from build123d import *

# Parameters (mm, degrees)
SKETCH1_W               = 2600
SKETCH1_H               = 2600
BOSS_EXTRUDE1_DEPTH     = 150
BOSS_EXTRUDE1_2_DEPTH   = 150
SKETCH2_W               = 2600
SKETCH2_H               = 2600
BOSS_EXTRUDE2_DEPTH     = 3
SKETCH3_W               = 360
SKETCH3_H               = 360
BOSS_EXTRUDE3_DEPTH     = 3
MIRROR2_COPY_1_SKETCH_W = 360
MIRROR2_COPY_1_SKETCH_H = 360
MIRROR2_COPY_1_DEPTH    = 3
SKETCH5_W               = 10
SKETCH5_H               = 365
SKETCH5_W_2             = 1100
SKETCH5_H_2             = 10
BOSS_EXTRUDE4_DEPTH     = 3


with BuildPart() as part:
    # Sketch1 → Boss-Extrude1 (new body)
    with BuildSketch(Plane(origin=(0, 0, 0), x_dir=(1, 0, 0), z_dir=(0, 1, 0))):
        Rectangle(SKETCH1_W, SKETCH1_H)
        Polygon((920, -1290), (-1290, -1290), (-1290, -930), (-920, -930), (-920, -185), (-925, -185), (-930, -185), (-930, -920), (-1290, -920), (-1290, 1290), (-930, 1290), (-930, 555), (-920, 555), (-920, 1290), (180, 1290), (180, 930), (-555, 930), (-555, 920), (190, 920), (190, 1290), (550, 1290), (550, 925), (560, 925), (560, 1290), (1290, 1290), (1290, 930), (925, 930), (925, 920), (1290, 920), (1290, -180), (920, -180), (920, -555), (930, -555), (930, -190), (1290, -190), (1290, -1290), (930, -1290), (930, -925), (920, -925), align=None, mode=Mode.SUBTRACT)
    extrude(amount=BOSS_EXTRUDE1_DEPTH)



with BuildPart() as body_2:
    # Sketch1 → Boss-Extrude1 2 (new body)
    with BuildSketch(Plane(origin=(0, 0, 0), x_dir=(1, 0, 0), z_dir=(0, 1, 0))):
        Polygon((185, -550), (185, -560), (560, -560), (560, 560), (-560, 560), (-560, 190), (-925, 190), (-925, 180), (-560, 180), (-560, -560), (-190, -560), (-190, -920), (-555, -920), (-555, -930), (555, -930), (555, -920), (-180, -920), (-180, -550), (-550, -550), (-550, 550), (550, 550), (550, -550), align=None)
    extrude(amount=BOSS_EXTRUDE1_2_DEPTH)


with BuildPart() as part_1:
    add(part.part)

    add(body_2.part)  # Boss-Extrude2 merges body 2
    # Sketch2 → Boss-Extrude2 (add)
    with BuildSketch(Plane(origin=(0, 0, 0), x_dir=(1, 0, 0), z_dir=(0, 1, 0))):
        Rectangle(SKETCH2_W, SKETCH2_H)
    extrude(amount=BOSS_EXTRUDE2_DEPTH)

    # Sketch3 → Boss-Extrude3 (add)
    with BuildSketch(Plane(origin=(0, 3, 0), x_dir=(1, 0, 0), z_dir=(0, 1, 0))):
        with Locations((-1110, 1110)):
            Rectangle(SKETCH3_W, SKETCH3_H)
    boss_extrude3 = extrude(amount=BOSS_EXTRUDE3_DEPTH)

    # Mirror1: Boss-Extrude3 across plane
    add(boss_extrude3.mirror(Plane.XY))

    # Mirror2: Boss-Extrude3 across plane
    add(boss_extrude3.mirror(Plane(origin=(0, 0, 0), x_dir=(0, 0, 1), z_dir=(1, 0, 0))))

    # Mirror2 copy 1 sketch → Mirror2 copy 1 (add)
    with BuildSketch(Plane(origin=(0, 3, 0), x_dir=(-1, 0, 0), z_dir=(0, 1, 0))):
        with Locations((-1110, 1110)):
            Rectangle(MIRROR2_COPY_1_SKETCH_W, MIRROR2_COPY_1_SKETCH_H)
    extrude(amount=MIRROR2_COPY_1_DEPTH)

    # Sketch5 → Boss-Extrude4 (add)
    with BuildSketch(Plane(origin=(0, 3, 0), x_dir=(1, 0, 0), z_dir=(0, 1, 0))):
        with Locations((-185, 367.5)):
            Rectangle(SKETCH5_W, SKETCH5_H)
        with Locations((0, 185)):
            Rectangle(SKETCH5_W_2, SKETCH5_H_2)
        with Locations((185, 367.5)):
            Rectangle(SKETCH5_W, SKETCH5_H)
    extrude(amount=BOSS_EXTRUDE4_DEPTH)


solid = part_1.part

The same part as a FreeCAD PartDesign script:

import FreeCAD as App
import Part
import Sketcher
from FreeCAD import Vector


def add_polygon(sketch, points):
    """Adds a closed chain of lines whose ends are joined by coincident constraints."""
    first, n = sketch.GeometryCount, len(points)
    for a, b in zip(points, points[1:] + points[:1]):
        sketch.addGeometry(Part.LineSegment(App.Vector(*a, 0), App.Vector(*b, 0)), False)
    for i in range(n):
        sketch.addConstraint(Sketcher.Constraint("Coincident", first + i, 2, first + (i + 1) % n, 1))

doc = App.newDocument("Part")
body = doc.addObject("PartDesign::Body", "Body")

sketch1 = doc.addObject("Sketcher::SketchObject", "Sketch")
body.addObject(sketch1)
sketch1.AttachmentSupport = (doc.XZ_Plane, [""])
sketch1.MapMode = "FlatFace"
add_polygon(sketch1, [(-1300, -1300), (-1300, 1300), (1300, 1300), (1300, -1300)])
add_polygon(sketch1, [(920, 925), (920, 1290), (-1290, 1290), (-1290, 930), (-920, 930), (-920, 185), (-930, 185), (-930, 920), (-1290, 920), (-1290, -1290), (-930, -1290), (-930, -555), (-920, -555), (-920, -1290), (180, -1290), (180, -930), (-555, -930), (-555, -920), (190, -920), (190, -1290), (550, -1290), (550, -925), (560, -925), (560, -1290), (1290, -1290), (1290, -930), (925, -930), (925, -920), (1290, -920), (1290, 180), (920, 180), (920, 555), (930, 555), (930, 190), (1290, 190), (1290, 1290), (930, 1290), (930, 925)])
sketch1.addConstraint([
    Sketcher.Constraint("Vertical", 0),
    Sketcher.Constraint("Horizontal", 1),
    Sketcher.Constraint("Vertical", 2),
    Sketcher.Constraint("Horizontal", 3),
    Sketcher.Constraint("Vertical", 4),
    Sketcher.Constraint("Horizontal", 5),
    Sketcher.Constraint("Vertical", 6),
    Sketcher.Constraint("Horizontal", 7),
    Sketcher.Constraint("Vertical", 8),
    Sketcher.Constraint("Horizontal", 9),
    Sketcher.Constraint("Vertical", 10),
    Sketcher.Constraint("Horizontal", 11),
    Sketcher.Constraint("Vertical", 12),
    Sketcher.Constraint("Horizontal", 13),
    Sketcher.Constraint("Vertical", 14),
    Sketcher.Constraint("Horizontal", 15),
    Sketcher.Constraint("Vertical", 16),
    Sketcher.Constraint("Horizontal", 17),
    Sketcher.Constraint("Vertical", 18),
    Sketcher.Constraint("Horizontal", 19),
    Sketcher.Constraint("Vertical", 20),
    Sketcher.Constraint("Horizontal", 21),
    Sketcher.Constraint("Vertical", 22),
    Sketcher.Constraint("Horizontal", 23),
    Sketcher.Constraint("Vertical", 24),
    Sketcher.Constraint("Horizontal", 25),
    Sketcher.Constraint("Vertical", 26),
    Sketcher.Constraint("Horizontal", 27),
    Sketcher.Constraint("Vertical", 28),
    Sketcher.Constraint("Horizontal", 29),
    Sketcher.Constraint("Vertical", 30),
    Sketcher.Constraint("Horizontal", 31),
    Sketcher.Constraint("Vertical", 32),
    Sketcher.Constraint("Horizontal", 33),
    Sketcher.Constraint("Vertical", 34),
    Sketcher.Constraint("Horizontal", 35),
    Sketcher.Constraint("Vertical", 36),
    Sketcher.Constraint("Horizontal", 37),
    Sketcher.Constraint("Vertical", 38),
    Sketcher.Constraint("Horizontal", 39),
    Sketcher.Constraint("Vertical", 40),
    Sketcher.Constraint("Horizontal", 41),
    Sketcher.Constraint("Symmetric", 0, 2, 2, 2, -1, 1),
    Sketcher.Constraint("Symmetric", 4, 2, 16, 2, -1, 1),
    Sketcher.Constraint("Symmetric", 5, 2, 27, 2, -1, 1),
    Sketcher.Constraint("Symmetric", 11, 2, 31, 2, -1, 1),
    Sketcher.Constraint("Symmetric", 15, 2, 34, 2, -1, 1),
    Sketcher.Constraint("Symmetric", 12, 2, 38, 2, -1, 1),
    Sketcher.Constraint("Symmetric", 12, 2, 27, 2, -2),
    Sketcher.Constraint("Horizontal", 17, 2, 22, 2),
    Sketcher.Constraint("Horizontal", 19, 2, 28, 2),
    Sketcher.Constraint("Horizontal", 21, 2, 30, 2),
    Sketcher.Constraint("Vertical", 10, 2, 13, 2),
    Sketcher.Constraint("Vertical", 8, 2, 15, 2),
    Sketcher.Constraint("Vertical", 36, 2, 39, 2),
    Sketcher.Constraint("Equal", 13, 23),
    Sketcher.Constraint("Equal", 15, 25),
    Sketcher.Constraint("Equal", 25, 35),
    Sketcher.Constraint("Equal", 3, 0),
    Sketcher.Constraint("Equal", 31, 4),
    Sketcher.Constraint("Equal", 39, 6),
    Sketcher.Constraint("Equal", 21, 8),
    Sketcher.Constraint("Equal", 19, 10),
    Sketcher.Constraint("Equal", 5, 12),
    Sketcher.Constraint("Equal", 10, 14),
    Sketcher.Constraint("Equal", 6, 18),
    Sketcher.Constraint("Equal", 41, 20),
    Sketcher.Constraint("Equal", 4, 24),
    Sketcher.Constraint("Equal", 17, 32),
    Sketcher.Constraint("Equal", 26, 36),
    Sketcher.Constraint("Equal", 32, 38),
    Sketcher.Constraint("DistanceX", 1, 1, 1, 2, 2600.0),
    Sketcher.Constraint("DistanceX", 5, 2, 5, 1, 2210.0),
    Sketcher.Constraint("DistanceX", 7, 1, 7, 2, 370.0),
    Sketcher.Constraint("DistanceX", 9, 2, 9, 1, 10.0),
    Sketcher.Constraint("DistanceX", 17, 1, 17, 2, 1100.0),
    Sketcher.Constraint("DistanceX", 19, 2, 19, 1, 735.0),
])
pad1 = doc.addObject("PartDesign::Pad", "Pad")
body.addObject(pad1)
pad1.Profile = sketch1
pad1.Length = 150
pad1.Reversed = True
body2 = doc.addObject("PartDesign::Body", "Body001")

sketch2 = doc.addObject("Sketcher::SketchObject", "Sketch001")
body2.addObject(sketch2)
sketch2.AttachmentSupport = (doc.getObject("XZ_Plane001"), [""])
sketch2.MapMode = "FlatFace"
add_polygon(sketch2, [(185, 550), (185, 560), (560, 560), (560, -560), (-560, -560), (-560, -190), (-925, -190), (-925, -180), (-560, -180), (-560, 560), (-190, 560), (-190, 920), (-555, 920), (-555, 930), (555, 930), (555, 920), (-180, 920), (-180, 550), (-550, 550), (-550, -550), (550, -550), (550, 550)])
sketch2.addConstraint([
    Sketcher.Constraint("Vertical", 0),
    Sketcher.Constraint("Horizontal", 1),
    Sketcher.Constraint("Vertical", 2),
    Sketcher.Constraint("Horizontal", 3),
    Sketcher.Constraint("Vertical", 4),
    Sketcher.Constraint("Horizontal", 5),
    Sketcher.Constraint("Vertical", 6),
    Sketcher.Constraint("Horizontal", 7),
    Sketcher.Constraint("Vertical", 8),
    Sketcher.Constraint("Horizontal", 9),
    Sketcher.Constraint("Vertical", 10),
    Sketcher.Constraint("Horizontal", 11),
    Sketcher.Constraint("Vertical", 12),
    Sketcher.Constraint("Horizontal", 13),
    Sketcher.Constraint("Vertical", 14),
    Sketcher.Constraint("Horizontal", 15),
    Sketcher.Constraint("Vertical", 16),
    Sketcher.Constraint("Horizontal", 17),
    Sketcher.Constraint("Vertical", 18),
    Sketcher.Constraint("Horizontal", 19),
    Sketcher.Constraint("Vertical", 20),
    Sketcher.Constraint("Horizontal", 21),
    Sketcher.Constraint("Symmetric", 1, 2, 3, 2, -1, 1),
    Sketcher.Constraint("Symmetric", 2, 2, 8, 2, -1, 1),
    Sketcher.Constraint("Symmetric", 17, 2, 19, 2, -1, 1),
    Sketcher.Constraint("Symmetric", 11, 2, 14, 2, -2),
    Sketcher.Constraint("Horizontal", 17, 2, 20, 2),
    Sketcher.Constraint("Equal", 7, 11),
    Sketcher.Constraint("Equal", 9, 17),
    Sketcher.Constraint("Equal", 11, 21),
    Sketcher.Constraint("Equal", 3, 2),
    Sketcher.Constraint("Equal", 17, 4),
    Sketcher.Constraint("Equal", 0, 6),
    Sketcher.Constraint("Equal", 6, 12),
    Sketcher.Constraint("Equal", 4, 16),
    Sketcher.Constraint("Equal", 19, 18),
    Sketcher.Constraint("DistanceX", 1, 1, 1, 2, 375.0),
    Sketcher.Constraint("DistanceX", 3, 2, 3, 1, 1120.0),
    Sketcher.Constraint("DistanceX", 5, 2, 5, 1, 365.0),
    Sketcher.Constraint("DistanceX", 9, 1, 9, 2, 370.0),
])
pad2 = doc.addObject("PartDesign::Pad", "Pad001")
body2.addObject(pad2)
pad2.Profile = sketch2
pad2.Length = 150
pad2.Reversed = True
body.AllowCompound = True
doc.recompute()

boolean = doc.addObject("PartDesign::Boolean", "Boolean")
body.addObject(boolean)
boolean.Type = "Fuse"
boolean.addObjects([body2])

sketch3 = doc.addObject("Sketcher::SketchObject", "Sketch002")
body.addObject(sketch3)
sketch3.AttachmentSupport = (doc.XZ_Plane, [""])
sketch3.MapMode = "FlatFace"
add_polygon(sketch3, [(-1300, -1300), (-1300, 1300), (1300, 1300), (1300, -1300)])
sketch3.addConstraint([
    Sketcher.Constraint("Vertical", 0),
    Sketcher.Constraint("Horizontal", 1),
    Sketcher.Constraint("Vertical", 2),
    Sketcher.Constraint("Horizontal", 3),
    Sketcher.Constraint("Symmetric", 0, 2, 2, 2, -1, 1),
    Sketcher.Constraint("Equal", 3, 0),
    Sketcher.Constraint("DistanceX", 1, 1, 1, 2, 2600.0),
])
pad3 = doc.addObject("PartDesign::Pad", "Pad002")
body.addObject(pad3)
pad3.Profile = sketch3
pad3.Length = 3
pad3.Reversed = True

sketch4 = doc.addObject("Sketcher::SketchObject", "Sketch003")
body.addObject(sketch4)
sketch4.AttachmentSupport = (doc.XZ_Plane, [""])
sketch4.MapMode = "FlatFace"
sketch4.AttachmentOffset = App.Placement(Vector(0, 0, -3), App.Rotation())
add_polygon(sketch4, [(-1290, -1290), (-1290, -930), (-930, -930), (-930, -1290)])
sketch4.addConstraint([
    Sketcher.Constraint("Vertical", 0),
    Sketcher.Constraint("Horizontal", 1),
    Sketcher.Constraint("Vertical", 2),
    Sketcher.Constraint("Horizontal", 3),
    Sketcher.Constraint("Equal", 3, 0),
    Sketcher.Constraint("DistanceX", 1, 1, 1, 2, 360.0),
    Sketcher.Constraint("DistanceX", 0, 2, -1, 1, 1290.0),
    Sketcher.Constraint("DistanceY", 0, 2, -1, 1, 930.0),
])
pad4 = doc.addObject("PartDesign::Pad", "Pad003")
body.addObject(pad4)
pad4.Profile = sketch4
pad4.Length = 3
pad4.Reversed = True
doc.recompute()

mirrored = doc.addObject("PartDesign::Mirrored", "Mirrored")
body.addObject(mirrored)
mirrored.Originals = [pad4]
mirrored.MirrorPlane = (doc.XY_Plane, [""])
body.Tip = mirrored
doc.recompute()

mirrored2 = doc.addObject("PartDesign::Mirrored", "Mirrored001")
body.addObject(mirrored2)
mirrored2.Originals = [pad4]
mirrored2.MirrorPlane = (doc.YZ_Plane, [""])
body.Tip = mirrored2

sketch5 = doc.addObject("Sketcher::SketchObject", "Sketch004")
body.addObject(sketch5)
sketch5.AttachmentSupport = (doc.XZ_Plane, [""])
sketch5.MapMode = "FlatFace"
sketch5.AttachmentOffset = App.Placement(Vector(0, 0, -3), App.Rotation())
add_polygon(sketch5, [(1290, 1290), (1290, 930), (930, 930), (930, 1290)])
sketch5.addConstraint([
    Sketcher.Constraint("Vertical", 0),
    Sketcher.Constraint("Horizontal", 1),
    Sketcher.Constraint("Vertical", 2),
    Sketcher.Constraint("Horizontal", 3),
    Sketcher.Constraint("Equal", 3, 0),
    Sketcher.Constraint("DistanceX", 1, 2, 1, 1, 360.0),
    Sketcher.Constraint("DistanceX", -1, 1, 0, 2, 1290.0),
    Sketcher.Constraint("DistanceY", -1, 1, 0, 2, 930.0),
])
pad5 = doc.addObject("PartDesign::Pad", "Pad004")
body.addObject(pad5)
pad5.Profile = sketch5
pad5.Length = 3
pad5.Reversed = True

sketch6 = doc.addObject("Sketcher::SketchObject", "Sketch005")
body.addObject(sketch6)
sketch6.AttachmentSupport = (doc.XZ_Plane, [""])
sketch6.MapMode = "FlatFace"
sketch6.AttachmentOffset = App.Placement(Vector(0, 0, -3), App.Rotation())
add_polygon(sketch6, [(-550, -190), (-550, -180), (550, -180), (550, -190), (190, -190), (190, -550), (180, -550), (180, -190), (-180, -190), (-180, -550), (-190, -550), (-190, -190)])
sketch6.addConstraint([
    Sketcher.Constraint("Vertical", 0),
    Sketcher.Constraint("Horizontal", 1),
    Sketcher.Constraint("Vertical", 2),
    Sketcher.Constraint("Horizontal", 3),
    Sketcher.Constraint("Vertical", 4),
    Sketcher.Constraint("Horizontal", 5),
    Sketcher.Constraint("Vertical", 6),
    Sketcher.Constraint("Horizontal", 7),
    Sketcher.Constraint("Vertical", 8),
    Sketcher.Constraint("Horizontal", 9),
    Sketcher.Constraint("Vertical", 10),
    Sketcher.Constraint("Horizontal", 11),
    Sketcher.Constraint("Symmetric", 5, 2, 8, 2, -2),
    Sketcher.Constraint("Symmetric", 3, 2, 10, 2, -2),
    Sketcher.Constraint("Horizontal", 3, 2, 6, 2),
    Sketcher.Constraint("Equal", 3, 7),
    Sketcher.Constraint("Equal", 7, 11),
    Sketcher.Constraint("Equal", 9, 0),
    Sketcher.Constraint("Equal", 11, 4),
    Sketcher.Constraint("DistanceX", 1, 1, 1, 2, 1100.0),
    Sketcher.Constraint("DistanceX", 3, 2, 3, 1, 360.0),
    Sketcher.Constraint("DistanceY", 0, 2, -1, 1, 180.0),
])
pad6 = doc.addObject("PartDesign::Pad", "Pad005")
body.addObject(pad6)
pad6.Profile = sketch6
pad6.Length = 3
pad6.Reversed = True

doc.recompute()
